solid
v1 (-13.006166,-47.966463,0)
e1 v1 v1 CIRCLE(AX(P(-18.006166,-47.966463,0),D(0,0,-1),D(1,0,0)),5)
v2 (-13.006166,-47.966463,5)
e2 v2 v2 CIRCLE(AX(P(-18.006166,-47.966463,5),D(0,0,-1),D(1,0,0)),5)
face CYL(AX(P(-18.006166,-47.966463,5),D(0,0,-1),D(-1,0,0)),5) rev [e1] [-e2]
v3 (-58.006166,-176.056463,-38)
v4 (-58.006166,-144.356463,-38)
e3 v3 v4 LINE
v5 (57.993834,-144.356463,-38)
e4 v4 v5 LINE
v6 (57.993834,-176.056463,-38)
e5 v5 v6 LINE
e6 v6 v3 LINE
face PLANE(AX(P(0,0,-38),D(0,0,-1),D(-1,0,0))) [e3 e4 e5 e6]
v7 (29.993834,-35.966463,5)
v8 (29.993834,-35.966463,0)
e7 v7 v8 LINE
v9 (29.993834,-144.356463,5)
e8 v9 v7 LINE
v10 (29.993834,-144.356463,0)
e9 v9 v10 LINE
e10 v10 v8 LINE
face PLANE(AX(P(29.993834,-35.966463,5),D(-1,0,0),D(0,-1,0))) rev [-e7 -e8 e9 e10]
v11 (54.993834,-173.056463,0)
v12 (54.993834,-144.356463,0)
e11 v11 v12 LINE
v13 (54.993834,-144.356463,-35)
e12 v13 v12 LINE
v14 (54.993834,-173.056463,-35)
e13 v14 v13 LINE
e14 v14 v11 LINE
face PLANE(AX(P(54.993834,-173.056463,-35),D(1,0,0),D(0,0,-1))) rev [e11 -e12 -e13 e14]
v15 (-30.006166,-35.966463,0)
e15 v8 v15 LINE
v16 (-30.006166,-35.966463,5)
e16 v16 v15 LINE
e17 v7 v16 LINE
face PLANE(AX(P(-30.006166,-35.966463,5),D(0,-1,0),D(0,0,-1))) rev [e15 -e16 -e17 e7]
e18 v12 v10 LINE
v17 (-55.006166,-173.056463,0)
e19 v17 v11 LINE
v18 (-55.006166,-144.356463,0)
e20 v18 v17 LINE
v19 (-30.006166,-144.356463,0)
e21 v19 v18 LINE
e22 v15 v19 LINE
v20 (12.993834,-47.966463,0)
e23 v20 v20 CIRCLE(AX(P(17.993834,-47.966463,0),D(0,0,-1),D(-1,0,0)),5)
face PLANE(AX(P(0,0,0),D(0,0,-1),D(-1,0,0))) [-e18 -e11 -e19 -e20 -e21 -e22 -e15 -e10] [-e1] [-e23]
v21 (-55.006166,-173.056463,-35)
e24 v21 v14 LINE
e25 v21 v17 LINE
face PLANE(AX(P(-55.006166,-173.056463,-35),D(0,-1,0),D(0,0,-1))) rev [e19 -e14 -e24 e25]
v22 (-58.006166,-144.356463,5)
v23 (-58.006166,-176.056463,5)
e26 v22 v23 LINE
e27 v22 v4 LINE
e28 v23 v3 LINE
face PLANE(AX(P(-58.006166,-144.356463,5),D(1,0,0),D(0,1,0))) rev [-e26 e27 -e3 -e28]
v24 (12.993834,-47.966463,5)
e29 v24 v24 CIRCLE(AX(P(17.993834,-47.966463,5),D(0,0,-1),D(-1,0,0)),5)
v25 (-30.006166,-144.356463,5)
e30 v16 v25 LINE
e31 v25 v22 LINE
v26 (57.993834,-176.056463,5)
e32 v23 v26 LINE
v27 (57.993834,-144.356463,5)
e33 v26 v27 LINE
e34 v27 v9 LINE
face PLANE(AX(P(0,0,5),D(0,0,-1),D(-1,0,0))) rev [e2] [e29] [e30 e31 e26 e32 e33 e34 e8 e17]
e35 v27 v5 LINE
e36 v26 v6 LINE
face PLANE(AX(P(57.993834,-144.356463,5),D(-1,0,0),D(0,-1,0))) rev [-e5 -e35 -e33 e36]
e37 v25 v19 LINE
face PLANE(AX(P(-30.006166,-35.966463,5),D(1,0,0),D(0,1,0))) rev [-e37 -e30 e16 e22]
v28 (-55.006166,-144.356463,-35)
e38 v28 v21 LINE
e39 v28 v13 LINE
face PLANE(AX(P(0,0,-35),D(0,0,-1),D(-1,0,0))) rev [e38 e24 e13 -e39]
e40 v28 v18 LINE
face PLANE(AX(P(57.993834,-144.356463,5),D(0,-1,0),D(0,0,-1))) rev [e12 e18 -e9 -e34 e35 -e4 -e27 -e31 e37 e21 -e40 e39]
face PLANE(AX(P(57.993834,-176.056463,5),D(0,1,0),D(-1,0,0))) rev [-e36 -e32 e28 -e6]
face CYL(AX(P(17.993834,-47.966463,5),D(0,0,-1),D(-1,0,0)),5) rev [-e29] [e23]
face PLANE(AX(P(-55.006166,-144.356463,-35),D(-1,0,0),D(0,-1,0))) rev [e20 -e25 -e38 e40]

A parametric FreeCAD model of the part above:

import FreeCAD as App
import Part
import Sketcher
from FreeCAD import Vector
Q = App.Units.Quantity


def add_polygon(sketch, points):
    """Adds a closed chain of lines whose ends are joined by coincident constraints."""
    first, n = sketch.GeometryCount, len(points)
    for a, b in zip(points, points[1:] + points[:1]):
        sketch.addGeometry(Part.LineSegment(App.Vector(*a, 0), App.Vector(*b, 0)), False)
    for i in range(n):
        sketch.addConstraint(Sketcher.Constraint("Coincident", first + i, 2, first + (i + 1) % n, 1))

doc = App.newDocument("Part")
body = doc.addObject("PartDesign::Body", "Body")

# Sketch on XY plane
sketch1 = body.newObject("Sketcher::SketchObject", "Sketch")
sketch1.AttachmentSupport = (doc.getObject("XY_Plane"), [""])
sketch1.MapMode = "FlatFace"
add_polygon(sketch1, [(30, -36), (-30, -36), (-30, -144), (-58, -144), (-58, -176), (58, -176), (58, -144), (30, -144)])  # lines 0-7
sketch1.addConstraint(Sketcher.Constraint("Horizontal", 0))
sketch1.addConstraint(Sketcher.Constraint("Vertical", 1))
sketch1.addConstraint(Sketcher.Constraint("Horizontal", 2))
sketch1.addConstraint(Sketcher.Constraint("Vertical", 3))
sketch1.addConstraint(Sketcher.Constraint("Horizontal", 4))
sketch1.addConstraint(Sketcher.Constraint("Vertical", 5))
sketch1.addConstraint(Sketcher.Constraint("Horizontal", 6))
sketch1.addConstraint(Sketcher.Constraint("Vertical", 7))
sketch1.addConstraint(Sketcher.Constraint("Horizontal", 2, 2, 5, 2))
sketch1.addConstraint(Sketcher.Constraint("Equal", 2, 6))
sketch1.addConstraint(Sketcher.Constraint("DistanceX", 0, 2, 0, 1, Q("60 mm")))
sketch1.addConstraint(Sketcher.Constraint("DistanceX", 2, 2, 2, 1, Q("28 mm")))
sketch1.addConstraint(Sketcher.Constraint("DistanceY", 3, 2, 3, 1, Q("31.7 mm")))
sketch1.addConstraint(Sketcher.Constraint("DistanceY", 1, 2, 1, 1, Q("108.39 mm")))
sketch1.addConstraint(Sketcher.Constraint("DistanceX", 0, 2, -1, 1, Q("30.006166 mm")))
sketch1.addConstraint(Sketcher.Constraint("DistanceY", 0, 2, -1, 1, Q("35.966463 mm")))
pad1 = body.newObject("PartDesign::Pad", "Pad")
pad1.Profile = sketch1
pad1.Length = 5

# Sketch on XY plane
sketch2 = body.newObject("Sketcher::SketchObject", "Sketch001")
sketch2.AttachmentSupport = (doc.getObject("XY_Plane"), [""])
sketch2.MapMode = "FlatFace"
add_polygon(sketch2, [(58, -144.4), (58, -176.1), (-58, -176.1), (-58, -144.4), (-55, -144.4), (-55, -173.1), (55, -173.1), (55, -144.4)])  # lines 0-7
sketch2.addConstraint(Sketcher.Constraint("Vertical", 0))
sketch2.addConstraint(Sketcher.Constraint("Horizontal", 1))
sketch2.addConstraint(Sketcher.Constraint("Vertical", 2))
sketch2.addConstraint(Sketcher.Constraint("Horizontal", 3))
sketch2.addConstraint(Sketcher.Constraint("Vertical", 4))
sketch2.addConstraint(Sketcher.Constraint("Horizontal", 5))
sketch2.addConstraint(Sketcher.Constraint("Vertical", 6))
sketch2.addConstraint(Sketcher.Constraint("Horizontal", 7))
sketch2.addConstraint(Sketcher.Constraint("Horizontal", 3, 2, 6, 2))
sketch2.addConstraint(Sketcher.Constraint("Equal", 3, 7))
sketch2.addConstraint(Sketcher.Constraint("DistanceX", 1, 2, 1, 1, Q("116 mm")))
sketch2.addConstraint(Sketcher.Constraint("DistanceX", 3, 1, 3, 2, Q("3 mm")))
sketch2.addConstraint(Sketcher.Constraint("DistanceY", 0, 2, 0, 1, Q("31.7 mm")))
sketch2.addConstraint(Sketcher.Constraint("DistanceY", 4, 2, 4, 1, Q("28.7 mm")))
sketch2.addConstraint(Sketcher.Constraint("DistanceX", -1, 1, 0, 2, Q("57.993834 mm")))
sketch2.addConstraint(Sketcher.Constraint("DistanceY", 0, 2, -1, 1, Q("176.056463 mm")))
pad2 = body.newObject("PartDesign::Pad", "Pad001")
pad2.Profile = sketch2
pad2.Length = 35
pad2.Reversed = True

# Sketch on XY plane
sketch3 = body.newObject("Sketcher::SketchObject", "Sketch002")
sketch3.AttachmentSupport = (doc.getObject("XY_Plane"), [""])
sketch3.MapMode = "FlatFace"
sketch3.AttachmentOffset = App.Placement(Vector(0, 0, -35), App.Rotation())
add_polygon(sketch3, [(58, -144), (58, -176), (-58, -176), (-58, -144)])  # lines 0-3
sketch3.addConstraint(Sketcher.Constraint("Vertical", 0))
sketch3.addConstraint(Sketcher.Constraint("Horizontal", 1))
sketch3.addConstraint(Sketcher.Constraint("Vertical", 2))
sketch3.addConstraint(Sketcher.Constraint("Horizontal", 3))
sketch3.addConstraint(Sketcher.Constraint("DistanceX", 1, 2, 1, 1, Q("116 mm")))
sketch3.addConstraint(Sketcher.Constraint("DistanceY", 0, 2, 0, 1, Q("31.7 mm")))
sketch3.addConstraint(Sketcher.Constraint("DistanceX", -1, 1, 0, 2, Q("57.993834 mm")))
sketch3.addConstraint(Sketcher.Constraint("DistanceY", 0, 2, -1, 1, Q("176.056463 mm")))
pad3 = body.newObject("PartDesign::Pad", "Pad002")
pad3.Profile = sketch3
pad3.Length = 3
pad3.Reversed = True

# Sketch on XY plane
sketch4 = body.newObject("Sketcher::SketchObject", "Sketch003")
sketch4.AttachmentSupport = (doc.getObject("XY_Plane"), [""])
sketch4.MapMode = "FlatFace"
sketch4.addGeometry(Part.Circle(Vector(18, -48, 0), Vector(0, 0, 1), 5), False)
sketch4.addGeometry(Part.Circle(Vector(-18, -48, 0), Vector(0, 0, 1), 5), False)
sketch4.addConstraint(Sketcher.Constraint("Equal", 0, 1))
sketch4.addConstraint(Sketcher.Constraint("Horizontal", 0, 3, 1, 3))
sketch4.addConstraint(Sketcher.Constraint("Diameter", 0, Q("10 mm")))
sketch4.addConstraint(Sketcher.Constraint("DistanceX", 1, 3, 0, 3, Q("36 mm")))
sketch4.addConstraint(Sketcher.Constraint("DistanceX", -1, 1, 0, 3, Q("17.993834 mm")))
sketch4.addConstraint(Sketcher.Constraint("DistanceY", 0, 3, -1, 1, Q("47.966463 mm")))
pocket1 = body.newObject("PartDesign::Pocket", "Pocket")
pocket1.Profile = sketch4
pocket1.Type = "ThroughAll"
pocket1.Reversed = True

doc.recompute()
